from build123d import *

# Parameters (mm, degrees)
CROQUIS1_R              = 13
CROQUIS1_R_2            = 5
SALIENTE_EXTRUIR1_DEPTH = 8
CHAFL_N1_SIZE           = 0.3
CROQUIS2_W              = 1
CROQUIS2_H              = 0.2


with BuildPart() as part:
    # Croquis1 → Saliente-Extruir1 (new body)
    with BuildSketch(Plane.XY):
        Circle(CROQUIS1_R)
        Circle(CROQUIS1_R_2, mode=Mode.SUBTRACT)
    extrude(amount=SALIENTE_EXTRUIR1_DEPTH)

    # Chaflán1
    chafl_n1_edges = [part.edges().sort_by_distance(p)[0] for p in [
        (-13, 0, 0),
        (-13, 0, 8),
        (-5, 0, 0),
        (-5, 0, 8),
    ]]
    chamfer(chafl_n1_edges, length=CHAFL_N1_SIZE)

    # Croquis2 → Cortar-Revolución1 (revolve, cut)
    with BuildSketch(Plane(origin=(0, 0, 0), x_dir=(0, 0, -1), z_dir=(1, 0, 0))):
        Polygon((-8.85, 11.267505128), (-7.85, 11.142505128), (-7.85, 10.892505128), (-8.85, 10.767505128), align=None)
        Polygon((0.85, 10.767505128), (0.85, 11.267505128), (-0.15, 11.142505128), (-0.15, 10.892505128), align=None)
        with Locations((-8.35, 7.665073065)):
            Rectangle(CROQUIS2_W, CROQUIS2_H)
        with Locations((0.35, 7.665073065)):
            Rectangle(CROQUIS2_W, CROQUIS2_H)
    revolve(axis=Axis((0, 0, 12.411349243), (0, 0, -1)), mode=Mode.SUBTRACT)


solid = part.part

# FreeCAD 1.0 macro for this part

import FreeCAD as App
import Part
import Sketcher
from FreeCAD import Vector


def edges_at(feature, points):
    """Names of the edges that pass closest to the given points."""
    edges = feature.Shape.Edges
    near = lambda p: min(range(len(edges)), key=lambda i: edges[i].distToShape(Part.Vertex(*p))[0])
    return sorted({f"Edge{near(p) + 1}" for p in points})

doc = App.newDocument("Part")
params = doc.addObject("Spreadsheet::Sheet", "Params")
for row, (alias, value) in enumerate([
    ("sketch1_diameter", "26 mm"),
    ("sketch1_diameter2", "10 mm"),
    ("pad1_length", "8 mm"),
    ("chamfer_size", "0.3 mm"),
    ("sketch2_height", "1 mm"),
    ("sketch2_width", "0.5 mm"),
    ("sketch2_width2", "0.2 mm"),
    ("sketch2_width3", "0.25 mm"),
    ("groove_angle", "360 deg"),
], start=1):
    params.set(f"A{row}", alias)
    params.set(f"B{row}", "=" + value)
    params.setAlias(f"B{row}", alias)

body = doc.addObject("PartDesign::Body", "Body")

# Sketch on XY plane
sketch1 = body.newObject("Sketcher::SketchObject", "Sketch")
sketch1.AttachmentSupport = (doc.getObject("XY_Plane"), [""])
sketch1.MapMode = "FlatFace"
sketch1.addGeometry([
    Part.Circle(Vector(0, 0, 0), Vector(0, 0, 1), 13),
    Part.Circle(Vector(0, 0, 0), Vector(0, 0, 1), 5),
], False)
sketch1.addConstraint([
    Sketcher.Constraint("Coincident", 0, 3, -1, 1),
    Sketcher.Constraint("Coincident", 1, 3, -1, 1),
    Sketcher.Constraint("Diameter", 0, 26.0),
    Sketcher.Constraint("Diameter", 1, 10.0),
])
sketch1.setExpression("Constraints[2]", "Params.sketch1_diameter")
sketch1.setExpression("Constraints[3]", "Params.sketch1_diameter2")
pad1 = body.newObject("PartDesign::Pad", "Pad")
pad1.Profile = sketch1
pad1.setExpression("Length", "Params.pad1_length")
doc.recompute()

chamfer = body.newObject("PartDesign::Chamfer", "Chamfer")
chamfer.Base = (pad1, edges_at(pad1, [
    (-13, 0, 0),
    (-13, 0, 8),
    (-5, 0, 0),
    (-5, 0, 8),
]))
chamfer.setExpression("Size", "Params.chamfer_size")

# Sketch on YZ plane
sketch2 = body.newObject("Sketcher::SketchObject", "Sketch001")
sketch2.AttachmentSupport = (doc.getObject("YZ_Plane"), [""])
sketch2.MapMode = "FlatFace"
sketch2.addGeometry([
    Part.LineSegment(Vector(11.142505, 7.85, 0), Vector(11.267505, 8.85, 0)),  # 0
    Part.LineSegment(Vector(11.267505, 8.85, 0), Vector(10.767505, 8.85, 0)),  # 1
    Part.LineSegment(Vector(10.767505, 8.85, 0), Vector(10.892505, 7.85, 0)),  # 2
    Part.LineSegment(Vector(10.892505, 7.85, 0), Vector(11.142505, 7.85, 0)),  # 3
    Part.LineSegment(Vector(10.767505, -0.85, 0), Vector(11.267505, -0.85, 0)),  # 4
    Part.LineSegment(Vector(11.267505, -0.85, 0), Vector(11.142505, 0.15, 0)),  # 5
    Part.LineSegment(Vector(11.142505, 0.15, 0), Vector(10.892505, 0.15, 0)),  # 6
    Part.LineSegment(Vector(10.892505, 0.15, 0), Vector(10.767505, -0.85, 0)),  # 7
    Part.LineSegment(Vector(7.765073, 8.85, 0), Vector(7.565073, 8.85, 0)),  # 8
    Part.LineSegment(Vector(7.565073, 8.85, 0), Vector(7.565073, 7.85, 0)),  # 9
    Part.LineSegment(Vector(7.565073, 7.85, 0), Vector(7.765073, 7.85, 0)),  # 10
    Part.LineSegment(Vector(7.765073, 7.85, 0), Vector(7.765073, 8.85, 0)),  # 11
    Part.LineSegment(Vector(7.765073, 0.15, 0), Vector(7.565073, 0.15, 0)),  # 12
    Part.LineSegment(Vector(7.565073, 0.15, 0), Vector(7.565073, -0.85, 0)),  # 13
    Part.LineSegment(Vector(7.565073, -0.85, 0), Vector(7.765073, -0.85, 0)),  # 14
    Part.LineSegment(Vector(7.765073, -0.85, 0), Vector(7.765073, 0.15, 0)),  # 15
], False)
sketch2.addConstraint([
    Sketcher.Constraint("Coincident", 0, 2, 1, 1),
    Sketcher.Constraint("Coincident", 1, 2, 2, 1),
    Sketcher.Constraint("Coincident", 2, 2, 3, 1),
    Sketcher.Constraint("Coincident", 3, 2, 0, 1),
    Sketcher.Constraint("Coincident", 4, 2, 5, 1),
    Sketcher.Constraint("Coincident", 5, 2, 6, 1),
    Sketcher.Constraint("Coincident", 6, 2, 7, 1),
    Sketcher.Constraint("Coincident", 7, 2, 4, 1),
    Sketcher.Constraint("Coincident", 8, 2, 9, 1),
    Sketcher.Constraint("Coincident", 9, 2, 10, 1),
    Sketcher.Constraint("Coincident", 10, 2, 11, 1),
    Sketcher.Constraint("Coincident", 11, 2, 8, 1),
    Sketcher.Constraint("Coincident", 12, 2, 13, 1),
    Sketcher.Constraint("Coincident", 13, 2, 14, 1),
    Sketcher.Constraint("Coincident", 14, 2, 15, 1),
    Sketcher.Constraint("Coincident", 15, 2, 12, 1),
    Sketcher.Constraint("Horizontal", 1),
    Sketcher.Constraint("Horizontal", 3),
    Sketcher.Constraint("Horizontal", 4),
    Sketcher.Constraint("Horizontal", 6),
    Sketcher.Constraint("Horizontal", 8),
    Sketcher.Constraint("Vertical", 9),
    Sketcher.Constraint("Horizontal", 10),
    Sketcher.Constraint("Vertical", 11),
    Sketcher.Constraint("Horizontal", 12),
    Sketcher.Constraint("Vertical", 13),
    Sketcher.Constraint("Horizontal", 14),
    Sketcher.Constraint("Vertical", 15),
    Sketcher.Constraint("Parallel", 2, 5),
    Sketcher.Constraint("Parallel", 0, 7),
    Sketcher.Constraint("Horizontal", 1, 2, 8, 2),
    Sketcher.Constraint("Horizontal", 3, 2, 9, 2),
    Sketcher.Constraint("Horizontal", 6, 2, 12, 2),
    Sketcher.Constraint("Horizontal", 7, 2, 13, 2),
    Sketcher.Constraint("Vertical", 0, 2, 4, 2),
    Sketcher.Constraint("Vertical", 3, 2, 5, 2),
    Sketcher.Constraint("Vertical", 2, 2, 6, 2),
    Sketcher.Constraint("Vertical", 1, 2, 7, 2),
    Sketcher.Constraint("Vertical", 9, 2, 12, 2),
    Sketcher.Constraint("Vertical", 11, 2, 14, 2),
    Sketcher.Constraint("DistanceY", 9, 2, 9, 1, 1.0),
    Sketcher.Constraint("DistanceX", 1, 2, 1, 1, 0.5),
    Sketcher.Constraint("DistanceX", 8, 2, 8, 1, 0.2),
    Sketcher.Constraint("DistanceX", 3, 1, 3, 2, 0.25),
    Sketcher.Constraint("DistanceY", 4, 2, 3, 2, 8.7),
    Sketcher.Constraint("DistanceY", -1, 1, 0, 2, 8.85),
    Sketcher.Constraint("DistanceX", -1, 1, 0, 2, 11.267505),
    Sketcher.Constraint("DistanceX", -1, 1, 8, 2, 7.565073),
])
sketch2.setExpression("Constraints[40]", "Params.sketch2_height")
sketch2.setExpression("Constraints[41]", "Params.sketch2_width")
sketch2.setExpression("Constraints[42]", "Params.sketch2_width2")
sketch2.setExpression("Constraints[43]", "Params.sketch2_width3")
groove = body.newObject("PartDesign::Groove", "Groove")
groove.Profile = sketch2
groove.ReferenceAxis = (sketch2, ["V_Axis"])
groove.setExpression("Angle", "Params.groove_angle")

doc.recompute()
